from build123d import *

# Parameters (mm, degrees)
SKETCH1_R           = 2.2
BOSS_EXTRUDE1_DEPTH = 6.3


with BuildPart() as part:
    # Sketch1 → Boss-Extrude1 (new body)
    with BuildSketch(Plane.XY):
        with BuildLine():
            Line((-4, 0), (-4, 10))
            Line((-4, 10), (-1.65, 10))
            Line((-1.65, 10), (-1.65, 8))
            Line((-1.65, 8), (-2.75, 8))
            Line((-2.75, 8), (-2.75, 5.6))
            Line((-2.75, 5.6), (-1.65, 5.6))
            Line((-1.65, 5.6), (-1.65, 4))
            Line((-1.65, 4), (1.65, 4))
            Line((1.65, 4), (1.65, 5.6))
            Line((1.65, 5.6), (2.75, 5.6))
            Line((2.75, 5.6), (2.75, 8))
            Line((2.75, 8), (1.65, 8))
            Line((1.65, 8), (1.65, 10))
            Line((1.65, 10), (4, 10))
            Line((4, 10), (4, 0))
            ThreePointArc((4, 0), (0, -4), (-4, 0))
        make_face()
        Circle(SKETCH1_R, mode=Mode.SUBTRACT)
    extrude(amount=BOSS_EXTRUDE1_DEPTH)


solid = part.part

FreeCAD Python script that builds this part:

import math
import FreeCAD as App
import Part
import Sketcher

V = App.Vector

doc = App.newDocument("Part")
body = doc.addObject("PartDesign::Body", "Body")

sketch1 = doc.addObject("Sketcher::SketchObject", "Sketch")
body.addObject(sketch1)
sketch1.AttachmentSupport = (doc.XY_Plane, [""])
sketch1.MapMode = "FlatFace"
sketch1.addGeometry([
    Part.LineSegment(V(-4, 10, 0), V(-4, 0, 0)),
    Part.ArcOfCircle(Part.Circle(V(0, 0, 0), V(0, 0, 1), 4), math.radians(180), math.radians(360)),
    Part.LineSegment(V(4, 0, 0), V(4, 10, 0)),
    Part.LineSegment(V(4, 10, 0), V(1.6, 10, 0)),
    Part.LineSegment(V(1.6, 10, 0), V(1.6, 8, 0)),
    Part.LineSegment(V(1.6, 8, 0), V(2.8, 8, 0)),
    Part.LineSegment(V(2.8, 8, 0), V(2.8, 5.6, 0)),
    Part.LineSegment(V(2.8, 5.6, 0), V(1.6, 5.6, 0)),
    Part.LineSegment(V(1.6, 5.6, 0), V(1.6, 4, 0)),
    Part.LineSegment(V(1.6, 4, 0), V(-1.6, 4, 0)),
    Part.LineSegment(V(-1.6, 4, 0), V(-1.6, 5.6, 0)),
    Part.LineSegment(V(-1.6, 5.6, 0), V(-2.8, 5.6, 0)),
    Part.LineSegment(V(-2.8, 5.6, 0), V(-2.8, 8, 0)),
    Part.LineSegment(V(-2.8, 8, 0), V(-1.6, 8, 0)),
    Part.LineSegment(V(-1.6, 8, 0), V(-1.6, 10, 0)),
    Part.LineSegment(V(-1.6, 10, 0), V(-4, 10, 0)),
    Part.Circle(V(0, 0, 0), V(0, 0, 1), 2.2),
], False)
sketch1.addConstraint([
    Sketcher.Constraint("Tangent", 0, 2, 1, 1),
    Sketcher.Constraint("Tangent", 1, 2, 2, 1),
    Sketcher.Constraint("Coincident", 2, 2, 3, 1),
    Sketcher.Constraint("Coincident", 3, 2, 4, 1),
    Sketcher.Constraint("Coincident", 4, 2, 5, 1),
    Sketcher.Constraint("Coincident", 5, 2, 6, 1),
    Sketcher.Constraint("Coincident", 6, 2, 7, 1),
    Sketcher.Constraint("Coincident", 7, 2, 8, 1),
    Sketcher.Constraint("Coincident", 8, 2, 9, 1),
    Sketcher.Constraint("Coincident", 9, 2, 10, 1),
    Sketcher.Constraint("Coincident", 10, 2, 11, 1),
    Sketcher.Constraint("Coincident", 11, 2, 12, 1),
    Sketcher.Constraint("Coincident", 12, 2, 13, 1),
    Sketcher.Constraint("Coincident", 13, 2, 14, 1),
    Sketcher.Constraint("Coincident", 14, 2, 15, 1),
    Sketcher.Constraint("Coincident", 15, 2, 0, 1),
    Sketcher.Constraint("Vertical", 0),
    Sketcher.Constraint("Vertical", 2),
    Sketcher.Constraint("Horizontal", 3),
    Sketcher.Constraint("Vertical", 4),
    Sketcher.Constraint("Horizontal", 5),
    Sketcher.Constraint("Vertical", 6),
    Sketcher.Constraint("Horizontal", 7),
    Sketcher.Constraint("Vertical", 8),
    Sketcher.Constraint("Horizontal", 9),
    Sketcher.Constraint("Vertical", 10),
    Sketcher.Constraint("Horizontal", 11),
    Sketcher.Constraint("Vertical", 12),
    Sketcher.Constraint("Horizontal", 13),
    Sketcher.Constraint("Vertical", 14),
    Sketcher.Constraint("Horizontal", 15),
    Sketcher.Constraint("Coincident", 1, 3, -1, 1),
    Sketcher.Constraint("Coincident", 16, 3, -1, 1),
    Sketcher.Constraint("Symmetric", 7, 2, 10, 2, -2),
    Sketcher.Constraint("Symmetric", 5, 2, 12, 2, -2),
    Sketcher.Constraint("Symmetric", 3, 2, 14, 2, -2),
    Sketcher.Constraint("Vertical", 4, 2, 7, 2),
    Sketcher.Constraint("Radius", 1, 4.0),
    Sketcher.Constraint("Diameter", 16, 4.4),
    Sketcher.Constraint("DistanceY", 0, 2, 0, 1, 10.0),
    Sketcher.Constraint("DistanceY", 4, 2, 4, 1, 2.0),
    Sketcher.Constraint("DistanceX", 5, 1, 5, 2, 1.1),
    Sketcher.Constraint("DistanceX", 9, 2, 9, 1, 3.3),
    Sketcher.Constraint("DistanceY", 6, 2, 6, 1, 2.4),
    Sketcher.Constraint("DistanceY", 8, 2, 8, 1, 1.6),
])
pad1 = doc.addObject("PartDesign::Pad", "Pad")
body.addObject(pad1)
pad1.Profile = sketch1
pad1.Length = 6.3

doc.recompute()
